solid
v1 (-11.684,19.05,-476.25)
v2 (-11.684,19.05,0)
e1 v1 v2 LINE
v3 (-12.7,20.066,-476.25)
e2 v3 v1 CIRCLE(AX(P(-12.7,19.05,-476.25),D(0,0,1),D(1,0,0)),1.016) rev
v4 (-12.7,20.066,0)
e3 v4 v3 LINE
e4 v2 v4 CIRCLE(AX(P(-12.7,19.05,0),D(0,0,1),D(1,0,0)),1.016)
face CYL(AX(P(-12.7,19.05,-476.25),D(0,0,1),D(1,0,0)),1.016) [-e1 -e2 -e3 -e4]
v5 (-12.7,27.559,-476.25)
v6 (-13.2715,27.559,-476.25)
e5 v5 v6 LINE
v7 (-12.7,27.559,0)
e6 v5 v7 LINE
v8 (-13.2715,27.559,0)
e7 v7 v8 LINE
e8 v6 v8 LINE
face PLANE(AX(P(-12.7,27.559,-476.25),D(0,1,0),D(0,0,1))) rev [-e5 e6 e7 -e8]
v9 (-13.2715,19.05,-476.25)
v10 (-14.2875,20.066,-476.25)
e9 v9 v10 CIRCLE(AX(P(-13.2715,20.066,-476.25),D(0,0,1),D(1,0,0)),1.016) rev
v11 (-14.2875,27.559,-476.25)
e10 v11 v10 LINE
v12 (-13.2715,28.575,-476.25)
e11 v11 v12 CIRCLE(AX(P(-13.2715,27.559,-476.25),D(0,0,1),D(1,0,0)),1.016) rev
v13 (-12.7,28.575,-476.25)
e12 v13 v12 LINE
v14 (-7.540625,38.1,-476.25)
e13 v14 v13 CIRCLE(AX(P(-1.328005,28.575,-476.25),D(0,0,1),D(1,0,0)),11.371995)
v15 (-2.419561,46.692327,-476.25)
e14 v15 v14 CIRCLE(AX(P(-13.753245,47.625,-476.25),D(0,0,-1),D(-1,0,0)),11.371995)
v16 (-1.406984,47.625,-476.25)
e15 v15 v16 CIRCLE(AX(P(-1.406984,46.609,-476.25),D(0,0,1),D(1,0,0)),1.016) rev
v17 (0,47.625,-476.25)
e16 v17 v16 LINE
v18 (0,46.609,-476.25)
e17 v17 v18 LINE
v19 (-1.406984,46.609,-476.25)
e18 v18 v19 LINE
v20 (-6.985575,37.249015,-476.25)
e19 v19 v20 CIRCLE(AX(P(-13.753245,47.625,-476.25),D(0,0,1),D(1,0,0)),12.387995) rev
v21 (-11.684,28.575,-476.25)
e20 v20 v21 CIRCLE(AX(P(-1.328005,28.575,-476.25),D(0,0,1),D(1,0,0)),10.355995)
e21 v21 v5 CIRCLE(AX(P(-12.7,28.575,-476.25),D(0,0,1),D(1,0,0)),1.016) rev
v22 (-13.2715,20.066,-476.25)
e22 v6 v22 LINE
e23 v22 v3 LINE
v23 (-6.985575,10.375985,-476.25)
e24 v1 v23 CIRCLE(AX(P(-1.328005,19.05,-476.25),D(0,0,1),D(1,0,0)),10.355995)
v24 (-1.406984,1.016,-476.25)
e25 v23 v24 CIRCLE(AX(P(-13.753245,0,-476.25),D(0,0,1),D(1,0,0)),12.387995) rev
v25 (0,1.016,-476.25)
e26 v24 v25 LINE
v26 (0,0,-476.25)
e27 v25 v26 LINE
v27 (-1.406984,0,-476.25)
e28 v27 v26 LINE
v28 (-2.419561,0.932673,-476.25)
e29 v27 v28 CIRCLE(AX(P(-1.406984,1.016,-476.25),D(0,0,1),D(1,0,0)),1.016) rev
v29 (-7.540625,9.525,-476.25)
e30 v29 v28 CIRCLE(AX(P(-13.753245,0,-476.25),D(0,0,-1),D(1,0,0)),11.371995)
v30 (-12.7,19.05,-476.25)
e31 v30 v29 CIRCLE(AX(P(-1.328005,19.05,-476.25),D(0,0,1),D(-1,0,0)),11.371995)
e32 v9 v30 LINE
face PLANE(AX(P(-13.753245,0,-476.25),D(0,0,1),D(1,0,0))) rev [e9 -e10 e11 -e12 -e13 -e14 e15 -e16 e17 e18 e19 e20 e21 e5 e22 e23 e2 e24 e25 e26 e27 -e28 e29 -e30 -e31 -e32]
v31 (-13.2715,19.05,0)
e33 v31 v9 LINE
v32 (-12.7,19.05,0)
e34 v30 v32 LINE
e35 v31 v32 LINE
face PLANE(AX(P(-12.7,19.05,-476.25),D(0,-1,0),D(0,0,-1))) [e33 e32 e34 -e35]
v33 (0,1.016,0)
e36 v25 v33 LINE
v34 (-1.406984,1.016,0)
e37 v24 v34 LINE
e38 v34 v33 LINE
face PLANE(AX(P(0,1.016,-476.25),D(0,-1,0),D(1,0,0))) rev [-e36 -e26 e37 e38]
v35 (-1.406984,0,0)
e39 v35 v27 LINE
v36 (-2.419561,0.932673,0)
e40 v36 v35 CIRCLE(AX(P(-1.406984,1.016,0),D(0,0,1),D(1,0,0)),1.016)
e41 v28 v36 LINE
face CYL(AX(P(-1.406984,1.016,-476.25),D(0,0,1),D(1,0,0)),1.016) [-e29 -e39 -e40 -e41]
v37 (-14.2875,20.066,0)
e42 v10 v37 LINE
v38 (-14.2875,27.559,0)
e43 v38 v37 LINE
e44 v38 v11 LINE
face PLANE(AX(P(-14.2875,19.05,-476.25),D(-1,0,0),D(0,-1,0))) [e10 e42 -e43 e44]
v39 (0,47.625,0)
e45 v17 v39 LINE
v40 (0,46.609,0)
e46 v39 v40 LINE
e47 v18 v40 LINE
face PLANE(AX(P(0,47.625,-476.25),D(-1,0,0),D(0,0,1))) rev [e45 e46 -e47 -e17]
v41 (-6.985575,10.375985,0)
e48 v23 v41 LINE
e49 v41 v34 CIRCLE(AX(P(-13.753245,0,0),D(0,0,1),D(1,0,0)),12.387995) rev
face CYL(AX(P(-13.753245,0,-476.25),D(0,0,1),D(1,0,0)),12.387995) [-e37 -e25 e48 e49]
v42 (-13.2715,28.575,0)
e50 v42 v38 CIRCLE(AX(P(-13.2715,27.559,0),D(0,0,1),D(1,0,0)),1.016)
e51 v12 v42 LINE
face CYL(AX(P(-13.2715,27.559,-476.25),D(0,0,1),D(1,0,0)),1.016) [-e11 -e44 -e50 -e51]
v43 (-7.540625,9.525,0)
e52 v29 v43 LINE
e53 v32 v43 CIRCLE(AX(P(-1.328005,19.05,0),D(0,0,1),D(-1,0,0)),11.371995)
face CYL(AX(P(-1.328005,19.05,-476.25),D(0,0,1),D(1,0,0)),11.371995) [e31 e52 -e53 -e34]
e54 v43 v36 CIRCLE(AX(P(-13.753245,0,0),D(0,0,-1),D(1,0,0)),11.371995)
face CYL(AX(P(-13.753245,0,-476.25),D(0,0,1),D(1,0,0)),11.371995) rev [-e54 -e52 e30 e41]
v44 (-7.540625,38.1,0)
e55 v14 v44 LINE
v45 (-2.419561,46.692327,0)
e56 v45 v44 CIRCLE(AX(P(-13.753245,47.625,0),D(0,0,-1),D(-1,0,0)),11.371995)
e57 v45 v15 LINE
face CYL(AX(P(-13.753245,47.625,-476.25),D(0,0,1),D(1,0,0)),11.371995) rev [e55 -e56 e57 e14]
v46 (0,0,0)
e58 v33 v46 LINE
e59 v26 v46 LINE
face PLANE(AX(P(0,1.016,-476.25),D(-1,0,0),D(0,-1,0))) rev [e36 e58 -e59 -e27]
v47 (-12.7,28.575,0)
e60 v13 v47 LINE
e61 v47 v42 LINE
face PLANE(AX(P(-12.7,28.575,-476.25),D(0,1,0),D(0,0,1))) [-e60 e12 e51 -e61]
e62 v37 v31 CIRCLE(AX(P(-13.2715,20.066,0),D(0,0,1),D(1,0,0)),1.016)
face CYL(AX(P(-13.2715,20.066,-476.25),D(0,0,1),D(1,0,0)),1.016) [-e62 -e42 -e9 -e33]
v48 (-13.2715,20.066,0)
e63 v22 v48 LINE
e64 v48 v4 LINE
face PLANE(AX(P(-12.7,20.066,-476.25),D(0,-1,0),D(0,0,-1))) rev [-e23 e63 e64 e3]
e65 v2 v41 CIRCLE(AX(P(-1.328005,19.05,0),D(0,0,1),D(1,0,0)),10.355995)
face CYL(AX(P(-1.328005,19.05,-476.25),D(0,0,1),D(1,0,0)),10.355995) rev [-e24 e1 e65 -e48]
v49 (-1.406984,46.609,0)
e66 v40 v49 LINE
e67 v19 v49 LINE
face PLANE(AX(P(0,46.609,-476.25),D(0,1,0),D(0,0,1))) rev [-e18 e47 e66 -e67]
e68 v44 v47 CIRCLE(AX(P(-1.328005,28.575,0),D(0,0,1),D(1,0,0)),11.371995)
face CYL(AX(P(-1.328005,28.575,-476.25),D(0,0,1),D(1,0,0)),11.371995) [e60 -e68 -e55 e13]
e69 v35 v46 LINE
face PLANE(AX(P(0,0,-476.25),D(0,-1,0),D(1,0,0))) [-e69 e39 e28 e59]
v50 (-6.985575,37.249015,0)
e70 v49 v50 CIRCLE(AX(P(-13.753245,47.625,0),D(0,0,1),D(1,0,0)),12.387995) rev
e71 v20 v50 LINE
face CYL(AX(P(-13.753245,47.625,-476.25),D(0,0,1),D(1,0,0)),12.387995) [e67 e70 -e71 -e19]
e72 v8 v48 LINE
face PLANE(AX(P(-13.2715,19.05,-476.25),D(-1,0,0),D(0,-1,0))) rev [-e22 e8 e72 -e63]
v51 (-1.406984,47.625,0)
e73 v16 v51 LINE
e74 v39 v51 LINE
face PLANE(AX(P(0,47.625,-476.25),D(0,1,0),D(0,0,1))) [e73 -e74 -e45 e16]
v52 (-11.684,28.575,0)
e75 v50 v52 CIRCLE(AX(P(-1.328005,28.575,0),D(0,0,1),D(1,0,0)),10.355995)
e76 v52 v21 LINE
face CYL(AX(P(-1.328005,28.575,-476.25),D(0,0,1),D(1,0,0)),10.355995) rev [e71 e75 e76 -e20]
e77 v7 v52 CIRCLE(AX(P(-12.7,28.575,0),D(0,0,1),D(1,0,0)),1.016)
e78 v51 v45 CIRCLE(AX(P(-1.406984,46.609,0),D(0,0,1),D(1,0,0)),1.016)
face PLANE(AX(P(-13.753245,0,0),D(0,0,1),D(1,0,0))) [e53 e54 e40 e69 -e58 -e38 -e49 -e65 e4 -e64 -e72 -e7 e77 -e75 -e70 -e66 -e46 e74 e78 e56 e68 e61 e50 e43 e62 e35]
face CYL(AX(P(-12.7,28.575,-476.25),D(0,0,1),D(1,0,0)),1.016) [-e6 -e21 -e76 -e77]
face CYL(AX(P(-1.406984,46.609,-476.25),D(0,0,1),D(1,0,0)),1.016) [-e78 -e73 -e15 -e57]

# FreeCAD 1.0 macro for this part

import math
import FreeCAD as App
import Part
import Sketcher
from FreeCAD import Vector
Q = App.Units.Quantity


def edges_at(feature, points):
    """Names of the edges that pass closest to the given points."""
    edges = feature.Shape.Edges
    near = lambda p: min(range(len(edges)), key=lambda i: edges[i].distToShape(Part.Vertex(*p))[0])
    return sorted({f"Edge{near(p) + 1}" for p in points})

doc = App.newDocument("Part")
params = doc.addObject("Spreadsheet::Sheet", "Params")
for row, (alias, value) in enumerate([
    ("sketch1_height", "0.04 in"),
    ("sketch1_width", "0.09375 in"),
    ("sketch1_width2", "0.0625 in"),
    ("sketch1_height2", "0.295 in"),
    ("sketch1_height3", "0.375 in"),
    ("pad1_length", "18.75 in"),
    ("fillet_radius", "0.04 in"),
], start=1):
    params.set(f"A{row}", alias)
    params.set(f"B{row}", "=" + value)
    params.setAlias(f"B{row}", alias)

body = doc.addObject("PartDesign::Body", "Body")

sketch1 = body.newObject("Sketcher::SketchObject", "Sketch")
sketch1.AttachmentSupport = (doc.getObject("XY_Plane"), [""])
sketch1.MapMode = "FlatFace"
sketch1.addGeometry([
    Part.LineSegment(Vector(-2.38125, 0, 0), Vector(0, 0, 0)),
    Part.LineSegment(Vector(0, 0, 0), Vector(0, 1.016, 0)),
    Part.LineSegment(Vector(0, 1.016, 0), Vector(-1.406984, 1.016, 0)),
    Part.ArcOfCircle(Part.Circle(Vector(-13.753245, 0, 0), Vector(0, 0, 1), 12.387995), math.radians(4.704391), math.radians(56.885857)),
    Part.ArcOfCircle(Part.Circle(Vector(-1.328005, 19.05, 0), Vector(0, 0, 1), 10.355995), math.radians(174.369802), math.radians(236.885857)),
    Part.LineSegment(Vector(-11.634041, 20.066, 0), Vector(-13.2715, 20.066, 0)),
    Part.LineSegment(Vector(-13.2715, 20.066, 0), Vector(-13.2715, 27.559, 0)),
    Part.LineSegment(Vector(-13.2715, 27.559, 0), Vector(-11.634041, 27.559, 0)),
    Part.ArcOfCircle(Part.Circle(Vector(-1.328005, 28.575, 0), Vector(0, 0, 1), 10.355995), math.radians(123.114143), math.radians(185.630198)),
    Part.ArcOfCircle(Part.Circle(Vector(-13.753245, 47.625, 0), Vector(0, 0, 1), 12.387995), math.radians(-56.885857), math.radians(-4.704391)),
    Part.LineSegment(Vector(-1.406984, 46.609, 0), Vector(0, 46.609, 0)),
    Part.LineSegment(Vector(0, 46.609, 0), Vector(0, 47.625, 0)),
    Part.LineSegment(Vector(0, 47.625, 0), Vector(-2.38125, 47.625, 0)),
    Part.ArcOfCircle(Part.Circle(Vector(-13.753245, 47.625, 0), Vector(0, 0, 1), 11.371995), math.radians(-56.885857), math.radians(0)),
    Part.ArcOfCircle(Part.Circle(Vector(-1.328005, 28.575, 0), Vector(0, 0, 1), 11.371995), math.radians(123.114143), math.radians(180)),
    Part.LineSegment(Vector(-12.7, 28.575, 0), Vector(-14.2875, 28.575, 0)),
    Part.LineSegment(Vector(-14.2875, 28.575, 0), Vector(-14.2875, 19.05, 0)),
    Part.LineSegment(Vector(-14.2875, 19.05, 0), Vector(-12.7, 19.05, 0)),
    Part.ArcOfCircle(Part.Circle(Vector(-1.328005, 19.05, 0), Vector(0, 0, 1), 11.371995), math.radians(180), math.radians(236.885857)),
    Part.ArcOfCircle(Part.Circle(Vector(-13.753245, 0, 0), Vector(0, 0, 1), 11.371995), math.radians(0), math.radians(56.885857)),
], False)
sketch1.addConstraint([
    Sketcher.Constraint("Coincident", 0, 2, 1, 1),
    Sketcher.Constraint("Coincident", 1, 2, 2, 1),
    Sketcher.Constraint("Coincident", 2, 2, 3, 1),
    Sketcher.Constraint("Tangent", 3, 2, 4, 2),
    Sketcher.Constraint("Coincident", 4, 1, 5, 1),
    Sketcher.Constraint("Coincident", 5, 2, 6, 1),
    Sketcher.Constraint("Coincident", 6, 2, 7, 1),
    Sketcher.Constraint("Coincident", 7, 2, 8, 2),
    Sketcher.Constraint("Tangent", 8, 1, 9, 1),
    Sketcher.Constraint("Coincident", 9, 2, 10, 1),
    Sketcher.Constraint("Coincident", 10, 2, 11, 1),
    Sketcher.Constraint("Coincident", 11, 2, 12, 1),
    Sketcher.Constraint("Coincident", 12, 2, 13, 2),
    Sketcher.Constraint("Tangent", 13, 1, 14, 1),
    Sketcher.Constraint("Coincident", 14, 2, 15, 1),
    Sketcher.Constraint("Coincident", 15, 2, 16, 1),
    Sketcher.Constraint("Coincident", 16, 2, 17, 1),
    Sketcher.Constraint("Coincident", 17, 2, 18, 1),
    Sketcher.Constraint("Tangent", 18, 2, 19, 2),
    Sketcher.Constraint("Coincident", 19, 1, 0, 1),
    Sketcher.Constraint("Horizontal", 0),
    Sketcher.Constraint("Vertical", 1),
    Sketcher.Constraint("Horizontal", 2),
    Sketcher.Constraint("Horizontal", 5),
    Sketcher.Constraint("Vertical", 6),
    Sketcher.Constraint("Horizontal", 7),
    Sketcher.Constraint("Horizontal", 10),
    Sketcher.Constraint("Vertical", 11),
    Sketcher.Constraint("Horizontal", 12),
    Sketcher.Constraint("Horizontal", 15),
    Sketcher.Constraint("Vertical", 16),
    Sketcher.Constraint("Horizontal", 17),
    Sketcher.Constraint("Coincident", 0, 2, -1, 1),
    Sketcher.Constraint("Coincident", 13, 3, 9, 3),
    Sketcher.Constraint("Coincident", 14, 3, 8, 3),
    Sketcher.Constraint("Coincident", 18, 3, 4, 3),
    Sketcher.Constraint("Coincident", 19, 3, 3, 3),
    Sketcher.Constraint("Equal", 4, 8),
    Sketcher.Constraint("Equal", 3, 9),
    Sketcher.Constraint("Equal", 13, 14),
    Sketcher.Constraint("Equal", 14, 18),
    Sketcher.Constraint("PointOnObject", 3, 3, -1),
    Sketcher.Constraint("PointOnObject", 10, 2, -2),
    Sketcher.Constraint("Horizontal", 13, 3, 11, 2),
    Sketcher.Constraint("Horizontal", 8, 3, 14, 2),
    Sketcher.Constraint("Horizontal", 18, 3, 16, 2),
    Sketcher.Constraint("Vertical", 4, 3, 8, 3),
    Sketcher.Constraint("Vertical", 3, 3, 9, 3),
    Sketcher.Constraint("Vertical", 4, 1, 7, 2),
    Sketcher.Constraint("Vertical", 2, 2, 9, 2),
    Sketcher.Constraint("DistanceY", 1, 1, 1, 2, Q("0.04 in")),
    Sketcher.Constraint("DistanceY", -1, 1, 13, 1, Q("1.5 in")),
    Sketcher.Constraint("DistanceX", 14, 2, -1, 1, Q("0.5 in")),
    Sketcher.Constraint("DistanceX", 0, 1, 0, 2, Q("0.09375 in")),
    Sketcher.Constraint("DistanceX", 15, 2, 15, 1, Q("0.0625 in")),
    Sketcher.Constraint("DistanceY", 6, 1, 6, 2, Q("0.295 in")),
    Sketcher.Constraint("DistanceY", 16, 2, 16, 1, Q("0.375 in")),
    Sketcher.Constraint("DistanceX", 15, 2, 6, 2, Q("0.04 in")),
    Sketcher.Constraint("Radius", 3, Q("12.387995 mm")),
])
sketch1.setExpression("Constraints[50]", "Params.sketch1_height")
sketch1.setExpression("Constraints[53]", "Params.sketch1_width")
sketch1.setExpression("Constraints[54]", "Params.sketch1_width2")
sketch1.setExpression("Constraints[55]", "Params.sketch1_height2")
sketch1.setExpression("Constraints[56]", "Params.sketch1_height3")
pad1 = body.newObject("PartDesign::Pad", "Pad")
pad1.Profile = sketch1
pad1.setExpression("Length", "Params.pad1_length")
pad1.Reversed = True
doc.recompute()

fillet = body.newObject("PartDesign::Fillet", "Fillet")
fillet.Base = (pad1, edges_at(pad1, [
    (-2.381, 0, -238.125),
    (-14.287, 19.05, -238.125),
    (-14.287, 28.575, -238.125),
    (-2.381, 47.625, -238.125),
    (-11.634, 27.559, -238.125),
    (-11.634, 20.066, -238.125),
]))
fillet.setExpression("Radius", "Params.fillet_radius")

doc.recompute()
